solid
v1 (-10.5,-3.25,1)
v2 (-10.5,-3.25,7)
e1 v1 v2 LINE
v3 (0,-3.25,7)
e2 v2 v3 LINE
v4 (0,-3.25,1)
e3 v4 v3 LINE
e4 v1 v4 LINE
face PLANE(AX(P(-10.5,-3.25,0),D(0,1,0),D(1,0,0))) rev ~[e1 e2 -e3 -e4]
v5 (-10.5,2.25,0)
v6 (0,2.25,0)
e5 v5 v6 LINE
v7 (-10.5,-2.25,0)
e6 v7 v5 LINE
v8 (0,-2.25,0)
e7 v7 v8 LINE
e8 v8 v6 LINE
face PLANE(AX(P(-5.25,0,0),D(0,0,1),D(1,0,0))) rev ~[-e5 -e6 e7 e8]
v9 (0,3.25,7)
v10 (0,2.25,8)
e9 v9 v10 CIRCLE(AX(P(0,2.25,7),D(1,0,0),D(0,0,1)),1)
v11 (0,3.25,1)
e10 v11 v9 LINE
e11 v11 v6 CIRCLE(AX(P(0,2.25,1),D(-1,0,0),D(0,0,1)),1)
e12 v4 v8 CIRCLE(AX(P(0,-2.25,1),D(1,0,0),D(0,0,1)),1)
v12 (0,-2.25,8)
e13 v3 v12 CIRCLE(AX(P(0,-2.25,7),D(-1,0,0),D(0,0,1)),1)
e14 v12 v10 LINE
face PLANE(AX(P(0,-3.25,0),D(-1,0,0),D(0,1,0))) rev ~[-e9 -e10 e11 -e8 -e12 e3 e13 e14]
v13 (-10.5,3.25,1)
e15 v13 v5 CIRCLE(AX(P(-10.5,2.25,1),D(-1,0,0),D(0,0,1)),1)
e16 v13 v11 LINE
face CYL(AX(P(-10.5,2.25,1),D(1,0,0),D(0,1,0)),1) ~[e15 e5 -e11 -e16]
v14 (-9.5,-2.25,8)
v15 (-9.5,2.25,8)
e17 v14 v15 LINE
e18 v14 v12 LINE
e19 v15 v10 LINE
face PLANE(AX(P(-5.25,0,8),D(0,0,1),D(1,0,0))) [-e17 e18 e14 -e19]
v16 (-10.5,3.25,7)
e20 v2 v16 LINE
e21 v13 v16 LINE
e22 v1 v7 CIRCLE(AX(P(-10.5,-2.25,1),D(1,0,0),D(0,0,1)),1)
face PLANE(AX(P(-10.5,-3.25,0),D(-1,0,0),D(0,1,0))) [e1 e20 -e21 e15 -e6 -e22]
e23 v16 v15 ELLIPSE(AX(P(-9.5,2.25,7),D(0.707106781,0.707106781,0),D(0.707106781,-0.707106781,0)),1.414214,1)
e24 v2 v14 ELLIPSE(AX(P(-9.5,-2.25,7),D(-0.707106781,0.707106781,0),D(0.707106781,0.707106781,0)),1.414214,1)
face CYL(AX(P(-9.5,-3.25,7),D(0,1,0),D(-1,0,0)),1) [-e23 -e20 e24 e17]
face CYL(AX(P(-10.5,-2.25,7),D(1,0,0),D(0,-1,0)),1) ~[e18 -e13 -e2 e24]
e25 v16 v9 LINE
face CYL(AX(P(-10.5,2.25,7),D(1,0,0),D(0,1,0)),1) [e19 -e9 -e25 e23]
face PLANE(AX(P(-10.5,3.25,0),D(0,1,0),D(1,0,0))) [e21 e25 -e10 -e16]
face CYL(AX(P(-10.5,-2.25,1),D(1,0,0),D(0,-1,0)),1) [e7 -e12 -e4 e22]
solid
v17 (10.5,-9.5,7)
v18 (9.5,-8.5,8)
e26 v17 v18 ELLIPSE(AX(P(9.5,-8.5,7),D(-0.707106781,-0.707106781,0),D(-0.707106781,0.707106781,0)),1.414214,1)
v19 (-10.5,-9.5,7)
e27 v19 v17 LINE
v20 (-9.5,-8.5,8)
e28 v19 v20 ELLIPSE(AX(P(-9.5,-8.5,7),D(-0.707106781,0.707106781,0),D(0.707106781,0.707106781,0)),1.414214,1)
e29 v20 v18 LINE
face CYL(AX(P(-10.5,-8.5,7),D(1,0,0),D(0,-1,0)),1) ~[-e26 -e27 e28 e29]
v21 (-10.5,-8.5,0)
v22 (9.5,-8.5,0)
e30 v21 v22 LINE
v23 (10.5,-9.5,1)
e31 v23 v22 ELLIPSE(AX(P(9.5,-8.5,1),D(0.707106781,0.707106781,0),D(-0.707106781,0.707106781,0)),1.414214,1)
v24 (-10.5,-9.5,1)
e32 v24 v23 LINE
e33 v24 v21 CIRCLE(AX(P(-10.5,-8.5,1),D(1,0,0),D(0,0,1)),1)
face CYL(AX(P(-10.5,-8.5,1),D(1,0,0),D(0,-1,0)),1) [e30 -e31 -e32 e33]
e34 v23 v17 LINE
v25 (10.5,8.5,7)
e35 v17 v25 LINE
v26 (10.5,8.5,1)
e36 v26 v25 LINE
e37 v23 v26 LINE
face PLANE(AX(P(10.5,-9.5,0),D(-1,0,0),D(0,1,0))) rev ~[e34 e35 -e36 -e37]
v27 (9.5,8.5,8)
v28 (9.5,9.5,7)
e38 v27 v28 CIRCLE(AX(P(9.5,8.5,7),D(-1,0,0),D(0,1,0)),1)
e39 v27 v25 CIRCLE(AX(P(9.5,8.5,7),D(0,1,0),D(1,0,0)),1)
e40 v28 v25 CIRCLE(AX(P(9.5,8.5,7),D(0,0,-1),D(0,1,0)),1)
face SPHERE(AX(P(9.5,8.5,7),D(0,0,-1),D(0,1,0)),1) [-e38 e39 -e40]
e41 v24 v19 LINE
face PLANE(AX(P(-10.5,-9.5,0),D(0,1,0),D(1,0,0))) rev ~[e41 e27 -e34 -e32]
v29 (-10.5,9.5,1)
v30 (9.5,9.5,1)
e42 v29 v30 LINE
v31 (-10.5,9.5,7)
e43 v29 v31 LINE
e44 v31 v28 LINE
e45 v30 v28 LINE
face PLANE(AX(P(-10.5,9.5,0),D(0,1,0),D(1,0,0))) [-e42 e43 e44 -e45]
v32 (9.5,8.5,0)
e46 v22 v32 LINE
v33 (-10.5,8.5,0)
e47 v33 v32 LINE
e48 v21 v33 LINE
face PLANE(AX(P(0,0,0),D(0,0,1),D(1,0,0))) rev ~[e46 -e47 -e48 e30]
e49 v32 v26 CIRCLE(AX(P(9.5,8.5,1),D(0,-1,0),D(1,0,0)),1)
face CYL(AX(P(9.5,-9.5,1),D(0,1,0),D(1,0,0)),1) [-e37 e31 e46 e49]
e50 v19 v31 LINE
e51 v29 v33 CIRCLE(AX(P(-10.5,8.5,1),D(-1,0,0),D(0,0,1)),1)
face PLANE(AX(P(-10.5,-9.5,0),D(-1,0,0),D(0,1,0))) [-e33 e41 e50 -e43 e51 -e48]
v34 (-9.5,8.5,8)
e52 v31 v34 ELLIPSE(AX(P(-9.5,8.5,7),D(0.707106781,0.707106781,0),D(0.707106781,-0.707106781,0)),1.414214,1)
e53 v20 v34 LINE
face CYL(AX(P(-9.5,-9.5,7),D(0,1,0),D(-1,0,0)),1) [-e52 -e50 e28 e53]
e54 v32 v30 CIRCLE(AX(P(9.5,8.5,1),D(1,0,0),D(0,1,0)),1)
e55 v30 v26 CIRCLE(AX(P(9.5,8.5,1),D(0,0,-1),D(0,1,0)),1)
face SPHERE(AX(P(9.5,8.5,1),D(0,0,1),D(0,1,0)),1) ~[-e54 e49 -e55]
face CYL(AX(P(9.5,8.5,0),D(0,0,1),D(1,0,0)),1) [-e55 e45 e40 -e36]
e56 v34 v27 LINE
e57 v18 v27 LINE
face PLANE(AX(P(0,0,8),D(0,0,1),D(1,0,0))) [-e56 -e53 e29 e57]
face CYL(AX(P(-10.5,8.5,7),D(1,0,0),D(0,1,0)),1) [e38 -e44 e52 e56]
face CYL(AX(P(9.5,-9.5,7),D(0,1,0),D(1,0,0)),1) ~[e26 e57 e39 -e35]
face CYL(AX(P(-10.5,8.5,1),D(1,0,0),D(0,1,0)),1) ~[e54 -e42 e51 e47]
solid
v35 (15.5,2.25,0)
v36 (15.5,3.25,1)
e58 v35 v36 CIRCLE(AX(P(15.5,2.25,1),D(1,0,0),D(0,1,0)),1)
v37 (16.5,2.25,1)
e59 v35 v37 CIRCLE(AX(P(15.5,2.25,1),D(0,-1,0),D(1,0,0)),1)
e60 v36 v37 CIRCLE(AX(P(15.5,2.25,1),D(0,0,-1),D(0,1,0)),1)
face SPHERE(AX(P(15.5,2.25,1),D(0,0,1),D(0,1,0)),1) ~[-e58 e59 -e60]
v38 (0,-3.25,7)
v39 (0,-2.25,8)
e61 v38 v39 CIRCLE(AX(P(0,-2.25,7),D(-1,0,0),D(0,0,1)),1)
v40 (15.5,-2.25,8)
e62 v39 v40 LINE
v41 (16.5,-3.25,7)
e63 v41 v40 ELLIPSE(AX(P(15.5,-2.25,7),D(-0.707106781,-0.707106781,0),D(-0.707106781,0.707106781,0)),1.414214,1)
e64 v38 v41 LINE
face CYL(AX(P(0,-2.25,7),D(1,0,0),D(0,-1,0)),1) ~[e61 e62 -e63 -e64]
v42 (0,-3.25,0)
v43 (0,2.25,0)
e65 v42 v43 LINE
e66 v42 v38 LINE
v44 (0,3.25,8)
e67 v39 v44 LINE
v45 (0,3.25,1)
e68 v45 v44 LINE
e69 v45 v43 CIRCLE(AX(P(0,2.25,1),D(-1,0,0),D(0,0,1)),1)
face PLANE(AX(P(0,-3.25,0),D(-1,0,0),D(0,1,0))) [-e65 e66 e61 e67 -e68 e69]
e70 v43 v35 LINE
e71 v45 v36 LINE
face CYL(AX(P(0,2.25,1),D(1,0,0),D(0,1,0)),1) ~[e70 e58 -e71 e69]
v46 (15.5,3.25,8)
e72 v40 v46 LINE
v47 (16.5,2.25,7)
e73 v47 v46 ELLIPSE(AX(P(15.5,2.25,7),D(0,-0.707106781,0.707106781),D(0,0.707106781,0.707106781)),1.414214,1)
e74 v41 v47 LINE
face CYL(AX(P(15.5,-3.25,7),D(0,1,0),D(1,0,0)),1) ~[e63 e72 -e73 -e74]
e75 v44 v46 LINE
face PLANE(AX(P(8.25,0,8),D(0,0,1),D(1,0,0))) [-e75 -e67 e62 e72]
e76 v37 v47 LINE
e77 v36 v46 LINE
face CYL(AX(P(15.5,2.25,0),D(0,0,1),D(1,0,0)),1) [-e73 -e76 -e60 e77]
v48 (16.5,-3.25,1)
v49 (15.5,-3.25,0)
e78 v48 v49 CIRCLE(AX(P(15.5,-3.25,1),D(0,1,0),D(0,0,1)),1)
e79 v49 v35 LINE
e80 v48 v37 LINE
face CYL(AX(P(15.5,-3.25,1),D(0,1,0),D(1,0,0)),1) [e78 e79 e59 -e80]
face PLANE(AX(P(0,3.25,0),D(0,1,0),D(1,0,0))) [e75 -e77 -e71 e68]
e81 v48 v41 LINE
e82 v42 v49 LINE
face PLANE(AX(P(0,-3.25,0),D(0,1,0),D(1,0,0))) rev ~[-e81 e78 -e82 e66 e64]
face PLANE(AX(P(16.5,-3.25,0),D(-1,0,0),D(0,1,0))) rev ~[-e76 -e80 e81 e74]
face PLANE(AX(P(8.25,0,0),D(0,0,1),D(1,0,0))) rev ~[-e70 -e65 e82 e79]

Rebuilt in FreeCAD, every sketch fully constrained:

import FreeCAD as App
import Part
import Sketcher

V = App.Vector


def edges_at(feature, points):
    """Names of the edges that pass closest to the given points."""
    edges = feature.Shape.Edges
    near = lambda p: min(range(len(edges)), key=lambda i: edges[i].distToShape(Part.Vertex(*p))[0])
    return sorted({f"Edge{near(p) + 1}" for p in points})


def add_polygon(sketch, points):
    """Adds a closed chain of lines whose ends are joined by coincident constraints."""
    first, n = sketch.GeometryCount, len(points)
    for a, b in zip(points, points[1:] + points[:1]):
        sketch.addGeometry(Part.LineSegment(App.Vector(*a, 0), App.Vector(*b, 0)), False)
    for i in range(n):
        sketch.addConstraint(Sketcher.Constraint("Coincident", first + i, 2, first + (i + 1) % n, 1))

doc = App.newDocument("Part")
body = doc.addObject("PartDesign::Body", "Body")

# Sketch on XY plane
sketch1 = body.newObject("Sketcher::SketchObject", "Sketch")
sketch1.AttachmentSupport = (doc.getObject("XY_Plane"), [""])
sketch1.MapMode = "FlatFace"
add_polygon(sketch1, [(0, 3), (0, -3), (16, -3), (16, 3)])  # lines 0-3
sketch1.addConstraint([
    Sketcher.Constraint("Vertical", 0),
    Sketcher.Constraint("Horizontal", 1),
    Sketcher.Constraint("Vertical", 2),
    Sketcher.Constraint("Horizontal", 3),
    Sketcher.Constraint("Symmetric", 0, 2, 3, 2, -1, 1),
    Sketcher.Constraint("DistanceX", 1, 1, 1, 2, 16.5),
    Sketcher.Constraint("DistanceY", 0, 2, 0, 1, 6.5),
])
pad1 = body.newObject("PartDesign::Pad", "Pad")
pad1.Profile = sketch1
pad1.Length = 8
doc.recompute()

fillet = body.newObject("PartDesign::Fillet", "Fillet")
fillet.Base = (pad1, edges_at(pad1, [
    (16.5, 3.25, 4),
    (8.25, 3.25, 0),
    (16.5, 0, 0),
    (16.5, 0, 8),
    (8.25, -3.25, 8),
]))
fillet.Radius = 1
body2 = doc.addObject("PartDesign::Body", "Body001")

# Sketch on XY plane
sketch2 = body2.newObject("Sketcher::SketchObject", "Sketch001")
sketch2.AttachmentSupport = (doc.getObject("XY_Plane001"), [""])
sketch2.MapMode = "FlatFace"
add_polygon(sketch2, [(-10, 10), (-10, -10), (10, -10), (10, 10)])  # lines 0-3
sketch2.addConstraint([
    Sketcher.Constraint("Vertical", 0),
    Sketcher.Constraint("Horizontal", 1),
    Sketcher.Constraint("Vertical", 2),
    Sketcher.Constraint("Horizontal", 3),
    Sketcher.Constraint("Symmetric", 0, 2, 2, 2, -1, 1),
    Sketcher.Constraint("DistanceX", 1, 1, 1, 2, 21.0),
    Sketcher.Constraint("DistanceY", 0, 2, 0, 1, 19.0),
])
pad2 = body2.newObject("PartDesign::Pad", "Pad001")
pad2.Profile = sketch2
pad2.Length = 8
doc.recompute()

fillet2 = body2.newObject("PartDesign::Fillet", "Fillet001")
fillet2.Base = (pad2, edges_at(pad2, [
    (10.5, 9.5, 4),
    (0, 9.5, 0),
    (0, 9.5, 8),
    (10.5, 0, 0),
    (10.5, 0, 8),
    (0, -9.5, 0),
    (0, -9.5, 8),
    (-10.5, 0, 8),
]))
fillet2.Radius = 1
body3 = doc.addObject("PartDesign::Body", "Body002")

# Sketch on XY plane
sketch3 = body3.newObject("Sketcher::SketchObject", "Sketch002")
sketch3.AttachmentSupport = (doc.getObject("XY_Plane002"), [""])
sketch3.MapMode = "FlatFace"
add_polygon(sketch3, [(-10, 3), (-10, -3), (0, -3), (0, 3)])  # lines 0-3
sketch3.addConstraint([
    Sketcher.Constraint("Vertical", 0),
    Sketcher.Constraint("Horizontal", 1),
    Sketcher.Constraint("Vertical", 2),
    Sketcher.Constraint("Horizontal", 3),
    Sketcher.Constraint("Symmetric", 1, 2, 2, 2, -1, 1),
    Sketcher.Constraint("DistanceX", 1, 1, 1, 2, 10.5),
    Sketcher.Constraint("DistanceY", 0, 2, 0, 1, 6.5),
])
pad3 = body3.newObject("PartDesign::Pad", "Pad002")
pad3.Profile = sketch3
pad3.Length = 8
doc.recompute()

fillet3 = body3.newObject("PartDesign::Fillet", "Fillet002")
fillet3.Base = (pad3, edges_at(pad3, [
    (-5.25, 3.25, 0),
    (-5.25, 3.25, 8),
    (-5.25, -3.25, 0),
    (-5.25, -3.25, 8),
    (-10.5, 0, 8),
]))
fillet3.Radius = 1

doc.recompute()
